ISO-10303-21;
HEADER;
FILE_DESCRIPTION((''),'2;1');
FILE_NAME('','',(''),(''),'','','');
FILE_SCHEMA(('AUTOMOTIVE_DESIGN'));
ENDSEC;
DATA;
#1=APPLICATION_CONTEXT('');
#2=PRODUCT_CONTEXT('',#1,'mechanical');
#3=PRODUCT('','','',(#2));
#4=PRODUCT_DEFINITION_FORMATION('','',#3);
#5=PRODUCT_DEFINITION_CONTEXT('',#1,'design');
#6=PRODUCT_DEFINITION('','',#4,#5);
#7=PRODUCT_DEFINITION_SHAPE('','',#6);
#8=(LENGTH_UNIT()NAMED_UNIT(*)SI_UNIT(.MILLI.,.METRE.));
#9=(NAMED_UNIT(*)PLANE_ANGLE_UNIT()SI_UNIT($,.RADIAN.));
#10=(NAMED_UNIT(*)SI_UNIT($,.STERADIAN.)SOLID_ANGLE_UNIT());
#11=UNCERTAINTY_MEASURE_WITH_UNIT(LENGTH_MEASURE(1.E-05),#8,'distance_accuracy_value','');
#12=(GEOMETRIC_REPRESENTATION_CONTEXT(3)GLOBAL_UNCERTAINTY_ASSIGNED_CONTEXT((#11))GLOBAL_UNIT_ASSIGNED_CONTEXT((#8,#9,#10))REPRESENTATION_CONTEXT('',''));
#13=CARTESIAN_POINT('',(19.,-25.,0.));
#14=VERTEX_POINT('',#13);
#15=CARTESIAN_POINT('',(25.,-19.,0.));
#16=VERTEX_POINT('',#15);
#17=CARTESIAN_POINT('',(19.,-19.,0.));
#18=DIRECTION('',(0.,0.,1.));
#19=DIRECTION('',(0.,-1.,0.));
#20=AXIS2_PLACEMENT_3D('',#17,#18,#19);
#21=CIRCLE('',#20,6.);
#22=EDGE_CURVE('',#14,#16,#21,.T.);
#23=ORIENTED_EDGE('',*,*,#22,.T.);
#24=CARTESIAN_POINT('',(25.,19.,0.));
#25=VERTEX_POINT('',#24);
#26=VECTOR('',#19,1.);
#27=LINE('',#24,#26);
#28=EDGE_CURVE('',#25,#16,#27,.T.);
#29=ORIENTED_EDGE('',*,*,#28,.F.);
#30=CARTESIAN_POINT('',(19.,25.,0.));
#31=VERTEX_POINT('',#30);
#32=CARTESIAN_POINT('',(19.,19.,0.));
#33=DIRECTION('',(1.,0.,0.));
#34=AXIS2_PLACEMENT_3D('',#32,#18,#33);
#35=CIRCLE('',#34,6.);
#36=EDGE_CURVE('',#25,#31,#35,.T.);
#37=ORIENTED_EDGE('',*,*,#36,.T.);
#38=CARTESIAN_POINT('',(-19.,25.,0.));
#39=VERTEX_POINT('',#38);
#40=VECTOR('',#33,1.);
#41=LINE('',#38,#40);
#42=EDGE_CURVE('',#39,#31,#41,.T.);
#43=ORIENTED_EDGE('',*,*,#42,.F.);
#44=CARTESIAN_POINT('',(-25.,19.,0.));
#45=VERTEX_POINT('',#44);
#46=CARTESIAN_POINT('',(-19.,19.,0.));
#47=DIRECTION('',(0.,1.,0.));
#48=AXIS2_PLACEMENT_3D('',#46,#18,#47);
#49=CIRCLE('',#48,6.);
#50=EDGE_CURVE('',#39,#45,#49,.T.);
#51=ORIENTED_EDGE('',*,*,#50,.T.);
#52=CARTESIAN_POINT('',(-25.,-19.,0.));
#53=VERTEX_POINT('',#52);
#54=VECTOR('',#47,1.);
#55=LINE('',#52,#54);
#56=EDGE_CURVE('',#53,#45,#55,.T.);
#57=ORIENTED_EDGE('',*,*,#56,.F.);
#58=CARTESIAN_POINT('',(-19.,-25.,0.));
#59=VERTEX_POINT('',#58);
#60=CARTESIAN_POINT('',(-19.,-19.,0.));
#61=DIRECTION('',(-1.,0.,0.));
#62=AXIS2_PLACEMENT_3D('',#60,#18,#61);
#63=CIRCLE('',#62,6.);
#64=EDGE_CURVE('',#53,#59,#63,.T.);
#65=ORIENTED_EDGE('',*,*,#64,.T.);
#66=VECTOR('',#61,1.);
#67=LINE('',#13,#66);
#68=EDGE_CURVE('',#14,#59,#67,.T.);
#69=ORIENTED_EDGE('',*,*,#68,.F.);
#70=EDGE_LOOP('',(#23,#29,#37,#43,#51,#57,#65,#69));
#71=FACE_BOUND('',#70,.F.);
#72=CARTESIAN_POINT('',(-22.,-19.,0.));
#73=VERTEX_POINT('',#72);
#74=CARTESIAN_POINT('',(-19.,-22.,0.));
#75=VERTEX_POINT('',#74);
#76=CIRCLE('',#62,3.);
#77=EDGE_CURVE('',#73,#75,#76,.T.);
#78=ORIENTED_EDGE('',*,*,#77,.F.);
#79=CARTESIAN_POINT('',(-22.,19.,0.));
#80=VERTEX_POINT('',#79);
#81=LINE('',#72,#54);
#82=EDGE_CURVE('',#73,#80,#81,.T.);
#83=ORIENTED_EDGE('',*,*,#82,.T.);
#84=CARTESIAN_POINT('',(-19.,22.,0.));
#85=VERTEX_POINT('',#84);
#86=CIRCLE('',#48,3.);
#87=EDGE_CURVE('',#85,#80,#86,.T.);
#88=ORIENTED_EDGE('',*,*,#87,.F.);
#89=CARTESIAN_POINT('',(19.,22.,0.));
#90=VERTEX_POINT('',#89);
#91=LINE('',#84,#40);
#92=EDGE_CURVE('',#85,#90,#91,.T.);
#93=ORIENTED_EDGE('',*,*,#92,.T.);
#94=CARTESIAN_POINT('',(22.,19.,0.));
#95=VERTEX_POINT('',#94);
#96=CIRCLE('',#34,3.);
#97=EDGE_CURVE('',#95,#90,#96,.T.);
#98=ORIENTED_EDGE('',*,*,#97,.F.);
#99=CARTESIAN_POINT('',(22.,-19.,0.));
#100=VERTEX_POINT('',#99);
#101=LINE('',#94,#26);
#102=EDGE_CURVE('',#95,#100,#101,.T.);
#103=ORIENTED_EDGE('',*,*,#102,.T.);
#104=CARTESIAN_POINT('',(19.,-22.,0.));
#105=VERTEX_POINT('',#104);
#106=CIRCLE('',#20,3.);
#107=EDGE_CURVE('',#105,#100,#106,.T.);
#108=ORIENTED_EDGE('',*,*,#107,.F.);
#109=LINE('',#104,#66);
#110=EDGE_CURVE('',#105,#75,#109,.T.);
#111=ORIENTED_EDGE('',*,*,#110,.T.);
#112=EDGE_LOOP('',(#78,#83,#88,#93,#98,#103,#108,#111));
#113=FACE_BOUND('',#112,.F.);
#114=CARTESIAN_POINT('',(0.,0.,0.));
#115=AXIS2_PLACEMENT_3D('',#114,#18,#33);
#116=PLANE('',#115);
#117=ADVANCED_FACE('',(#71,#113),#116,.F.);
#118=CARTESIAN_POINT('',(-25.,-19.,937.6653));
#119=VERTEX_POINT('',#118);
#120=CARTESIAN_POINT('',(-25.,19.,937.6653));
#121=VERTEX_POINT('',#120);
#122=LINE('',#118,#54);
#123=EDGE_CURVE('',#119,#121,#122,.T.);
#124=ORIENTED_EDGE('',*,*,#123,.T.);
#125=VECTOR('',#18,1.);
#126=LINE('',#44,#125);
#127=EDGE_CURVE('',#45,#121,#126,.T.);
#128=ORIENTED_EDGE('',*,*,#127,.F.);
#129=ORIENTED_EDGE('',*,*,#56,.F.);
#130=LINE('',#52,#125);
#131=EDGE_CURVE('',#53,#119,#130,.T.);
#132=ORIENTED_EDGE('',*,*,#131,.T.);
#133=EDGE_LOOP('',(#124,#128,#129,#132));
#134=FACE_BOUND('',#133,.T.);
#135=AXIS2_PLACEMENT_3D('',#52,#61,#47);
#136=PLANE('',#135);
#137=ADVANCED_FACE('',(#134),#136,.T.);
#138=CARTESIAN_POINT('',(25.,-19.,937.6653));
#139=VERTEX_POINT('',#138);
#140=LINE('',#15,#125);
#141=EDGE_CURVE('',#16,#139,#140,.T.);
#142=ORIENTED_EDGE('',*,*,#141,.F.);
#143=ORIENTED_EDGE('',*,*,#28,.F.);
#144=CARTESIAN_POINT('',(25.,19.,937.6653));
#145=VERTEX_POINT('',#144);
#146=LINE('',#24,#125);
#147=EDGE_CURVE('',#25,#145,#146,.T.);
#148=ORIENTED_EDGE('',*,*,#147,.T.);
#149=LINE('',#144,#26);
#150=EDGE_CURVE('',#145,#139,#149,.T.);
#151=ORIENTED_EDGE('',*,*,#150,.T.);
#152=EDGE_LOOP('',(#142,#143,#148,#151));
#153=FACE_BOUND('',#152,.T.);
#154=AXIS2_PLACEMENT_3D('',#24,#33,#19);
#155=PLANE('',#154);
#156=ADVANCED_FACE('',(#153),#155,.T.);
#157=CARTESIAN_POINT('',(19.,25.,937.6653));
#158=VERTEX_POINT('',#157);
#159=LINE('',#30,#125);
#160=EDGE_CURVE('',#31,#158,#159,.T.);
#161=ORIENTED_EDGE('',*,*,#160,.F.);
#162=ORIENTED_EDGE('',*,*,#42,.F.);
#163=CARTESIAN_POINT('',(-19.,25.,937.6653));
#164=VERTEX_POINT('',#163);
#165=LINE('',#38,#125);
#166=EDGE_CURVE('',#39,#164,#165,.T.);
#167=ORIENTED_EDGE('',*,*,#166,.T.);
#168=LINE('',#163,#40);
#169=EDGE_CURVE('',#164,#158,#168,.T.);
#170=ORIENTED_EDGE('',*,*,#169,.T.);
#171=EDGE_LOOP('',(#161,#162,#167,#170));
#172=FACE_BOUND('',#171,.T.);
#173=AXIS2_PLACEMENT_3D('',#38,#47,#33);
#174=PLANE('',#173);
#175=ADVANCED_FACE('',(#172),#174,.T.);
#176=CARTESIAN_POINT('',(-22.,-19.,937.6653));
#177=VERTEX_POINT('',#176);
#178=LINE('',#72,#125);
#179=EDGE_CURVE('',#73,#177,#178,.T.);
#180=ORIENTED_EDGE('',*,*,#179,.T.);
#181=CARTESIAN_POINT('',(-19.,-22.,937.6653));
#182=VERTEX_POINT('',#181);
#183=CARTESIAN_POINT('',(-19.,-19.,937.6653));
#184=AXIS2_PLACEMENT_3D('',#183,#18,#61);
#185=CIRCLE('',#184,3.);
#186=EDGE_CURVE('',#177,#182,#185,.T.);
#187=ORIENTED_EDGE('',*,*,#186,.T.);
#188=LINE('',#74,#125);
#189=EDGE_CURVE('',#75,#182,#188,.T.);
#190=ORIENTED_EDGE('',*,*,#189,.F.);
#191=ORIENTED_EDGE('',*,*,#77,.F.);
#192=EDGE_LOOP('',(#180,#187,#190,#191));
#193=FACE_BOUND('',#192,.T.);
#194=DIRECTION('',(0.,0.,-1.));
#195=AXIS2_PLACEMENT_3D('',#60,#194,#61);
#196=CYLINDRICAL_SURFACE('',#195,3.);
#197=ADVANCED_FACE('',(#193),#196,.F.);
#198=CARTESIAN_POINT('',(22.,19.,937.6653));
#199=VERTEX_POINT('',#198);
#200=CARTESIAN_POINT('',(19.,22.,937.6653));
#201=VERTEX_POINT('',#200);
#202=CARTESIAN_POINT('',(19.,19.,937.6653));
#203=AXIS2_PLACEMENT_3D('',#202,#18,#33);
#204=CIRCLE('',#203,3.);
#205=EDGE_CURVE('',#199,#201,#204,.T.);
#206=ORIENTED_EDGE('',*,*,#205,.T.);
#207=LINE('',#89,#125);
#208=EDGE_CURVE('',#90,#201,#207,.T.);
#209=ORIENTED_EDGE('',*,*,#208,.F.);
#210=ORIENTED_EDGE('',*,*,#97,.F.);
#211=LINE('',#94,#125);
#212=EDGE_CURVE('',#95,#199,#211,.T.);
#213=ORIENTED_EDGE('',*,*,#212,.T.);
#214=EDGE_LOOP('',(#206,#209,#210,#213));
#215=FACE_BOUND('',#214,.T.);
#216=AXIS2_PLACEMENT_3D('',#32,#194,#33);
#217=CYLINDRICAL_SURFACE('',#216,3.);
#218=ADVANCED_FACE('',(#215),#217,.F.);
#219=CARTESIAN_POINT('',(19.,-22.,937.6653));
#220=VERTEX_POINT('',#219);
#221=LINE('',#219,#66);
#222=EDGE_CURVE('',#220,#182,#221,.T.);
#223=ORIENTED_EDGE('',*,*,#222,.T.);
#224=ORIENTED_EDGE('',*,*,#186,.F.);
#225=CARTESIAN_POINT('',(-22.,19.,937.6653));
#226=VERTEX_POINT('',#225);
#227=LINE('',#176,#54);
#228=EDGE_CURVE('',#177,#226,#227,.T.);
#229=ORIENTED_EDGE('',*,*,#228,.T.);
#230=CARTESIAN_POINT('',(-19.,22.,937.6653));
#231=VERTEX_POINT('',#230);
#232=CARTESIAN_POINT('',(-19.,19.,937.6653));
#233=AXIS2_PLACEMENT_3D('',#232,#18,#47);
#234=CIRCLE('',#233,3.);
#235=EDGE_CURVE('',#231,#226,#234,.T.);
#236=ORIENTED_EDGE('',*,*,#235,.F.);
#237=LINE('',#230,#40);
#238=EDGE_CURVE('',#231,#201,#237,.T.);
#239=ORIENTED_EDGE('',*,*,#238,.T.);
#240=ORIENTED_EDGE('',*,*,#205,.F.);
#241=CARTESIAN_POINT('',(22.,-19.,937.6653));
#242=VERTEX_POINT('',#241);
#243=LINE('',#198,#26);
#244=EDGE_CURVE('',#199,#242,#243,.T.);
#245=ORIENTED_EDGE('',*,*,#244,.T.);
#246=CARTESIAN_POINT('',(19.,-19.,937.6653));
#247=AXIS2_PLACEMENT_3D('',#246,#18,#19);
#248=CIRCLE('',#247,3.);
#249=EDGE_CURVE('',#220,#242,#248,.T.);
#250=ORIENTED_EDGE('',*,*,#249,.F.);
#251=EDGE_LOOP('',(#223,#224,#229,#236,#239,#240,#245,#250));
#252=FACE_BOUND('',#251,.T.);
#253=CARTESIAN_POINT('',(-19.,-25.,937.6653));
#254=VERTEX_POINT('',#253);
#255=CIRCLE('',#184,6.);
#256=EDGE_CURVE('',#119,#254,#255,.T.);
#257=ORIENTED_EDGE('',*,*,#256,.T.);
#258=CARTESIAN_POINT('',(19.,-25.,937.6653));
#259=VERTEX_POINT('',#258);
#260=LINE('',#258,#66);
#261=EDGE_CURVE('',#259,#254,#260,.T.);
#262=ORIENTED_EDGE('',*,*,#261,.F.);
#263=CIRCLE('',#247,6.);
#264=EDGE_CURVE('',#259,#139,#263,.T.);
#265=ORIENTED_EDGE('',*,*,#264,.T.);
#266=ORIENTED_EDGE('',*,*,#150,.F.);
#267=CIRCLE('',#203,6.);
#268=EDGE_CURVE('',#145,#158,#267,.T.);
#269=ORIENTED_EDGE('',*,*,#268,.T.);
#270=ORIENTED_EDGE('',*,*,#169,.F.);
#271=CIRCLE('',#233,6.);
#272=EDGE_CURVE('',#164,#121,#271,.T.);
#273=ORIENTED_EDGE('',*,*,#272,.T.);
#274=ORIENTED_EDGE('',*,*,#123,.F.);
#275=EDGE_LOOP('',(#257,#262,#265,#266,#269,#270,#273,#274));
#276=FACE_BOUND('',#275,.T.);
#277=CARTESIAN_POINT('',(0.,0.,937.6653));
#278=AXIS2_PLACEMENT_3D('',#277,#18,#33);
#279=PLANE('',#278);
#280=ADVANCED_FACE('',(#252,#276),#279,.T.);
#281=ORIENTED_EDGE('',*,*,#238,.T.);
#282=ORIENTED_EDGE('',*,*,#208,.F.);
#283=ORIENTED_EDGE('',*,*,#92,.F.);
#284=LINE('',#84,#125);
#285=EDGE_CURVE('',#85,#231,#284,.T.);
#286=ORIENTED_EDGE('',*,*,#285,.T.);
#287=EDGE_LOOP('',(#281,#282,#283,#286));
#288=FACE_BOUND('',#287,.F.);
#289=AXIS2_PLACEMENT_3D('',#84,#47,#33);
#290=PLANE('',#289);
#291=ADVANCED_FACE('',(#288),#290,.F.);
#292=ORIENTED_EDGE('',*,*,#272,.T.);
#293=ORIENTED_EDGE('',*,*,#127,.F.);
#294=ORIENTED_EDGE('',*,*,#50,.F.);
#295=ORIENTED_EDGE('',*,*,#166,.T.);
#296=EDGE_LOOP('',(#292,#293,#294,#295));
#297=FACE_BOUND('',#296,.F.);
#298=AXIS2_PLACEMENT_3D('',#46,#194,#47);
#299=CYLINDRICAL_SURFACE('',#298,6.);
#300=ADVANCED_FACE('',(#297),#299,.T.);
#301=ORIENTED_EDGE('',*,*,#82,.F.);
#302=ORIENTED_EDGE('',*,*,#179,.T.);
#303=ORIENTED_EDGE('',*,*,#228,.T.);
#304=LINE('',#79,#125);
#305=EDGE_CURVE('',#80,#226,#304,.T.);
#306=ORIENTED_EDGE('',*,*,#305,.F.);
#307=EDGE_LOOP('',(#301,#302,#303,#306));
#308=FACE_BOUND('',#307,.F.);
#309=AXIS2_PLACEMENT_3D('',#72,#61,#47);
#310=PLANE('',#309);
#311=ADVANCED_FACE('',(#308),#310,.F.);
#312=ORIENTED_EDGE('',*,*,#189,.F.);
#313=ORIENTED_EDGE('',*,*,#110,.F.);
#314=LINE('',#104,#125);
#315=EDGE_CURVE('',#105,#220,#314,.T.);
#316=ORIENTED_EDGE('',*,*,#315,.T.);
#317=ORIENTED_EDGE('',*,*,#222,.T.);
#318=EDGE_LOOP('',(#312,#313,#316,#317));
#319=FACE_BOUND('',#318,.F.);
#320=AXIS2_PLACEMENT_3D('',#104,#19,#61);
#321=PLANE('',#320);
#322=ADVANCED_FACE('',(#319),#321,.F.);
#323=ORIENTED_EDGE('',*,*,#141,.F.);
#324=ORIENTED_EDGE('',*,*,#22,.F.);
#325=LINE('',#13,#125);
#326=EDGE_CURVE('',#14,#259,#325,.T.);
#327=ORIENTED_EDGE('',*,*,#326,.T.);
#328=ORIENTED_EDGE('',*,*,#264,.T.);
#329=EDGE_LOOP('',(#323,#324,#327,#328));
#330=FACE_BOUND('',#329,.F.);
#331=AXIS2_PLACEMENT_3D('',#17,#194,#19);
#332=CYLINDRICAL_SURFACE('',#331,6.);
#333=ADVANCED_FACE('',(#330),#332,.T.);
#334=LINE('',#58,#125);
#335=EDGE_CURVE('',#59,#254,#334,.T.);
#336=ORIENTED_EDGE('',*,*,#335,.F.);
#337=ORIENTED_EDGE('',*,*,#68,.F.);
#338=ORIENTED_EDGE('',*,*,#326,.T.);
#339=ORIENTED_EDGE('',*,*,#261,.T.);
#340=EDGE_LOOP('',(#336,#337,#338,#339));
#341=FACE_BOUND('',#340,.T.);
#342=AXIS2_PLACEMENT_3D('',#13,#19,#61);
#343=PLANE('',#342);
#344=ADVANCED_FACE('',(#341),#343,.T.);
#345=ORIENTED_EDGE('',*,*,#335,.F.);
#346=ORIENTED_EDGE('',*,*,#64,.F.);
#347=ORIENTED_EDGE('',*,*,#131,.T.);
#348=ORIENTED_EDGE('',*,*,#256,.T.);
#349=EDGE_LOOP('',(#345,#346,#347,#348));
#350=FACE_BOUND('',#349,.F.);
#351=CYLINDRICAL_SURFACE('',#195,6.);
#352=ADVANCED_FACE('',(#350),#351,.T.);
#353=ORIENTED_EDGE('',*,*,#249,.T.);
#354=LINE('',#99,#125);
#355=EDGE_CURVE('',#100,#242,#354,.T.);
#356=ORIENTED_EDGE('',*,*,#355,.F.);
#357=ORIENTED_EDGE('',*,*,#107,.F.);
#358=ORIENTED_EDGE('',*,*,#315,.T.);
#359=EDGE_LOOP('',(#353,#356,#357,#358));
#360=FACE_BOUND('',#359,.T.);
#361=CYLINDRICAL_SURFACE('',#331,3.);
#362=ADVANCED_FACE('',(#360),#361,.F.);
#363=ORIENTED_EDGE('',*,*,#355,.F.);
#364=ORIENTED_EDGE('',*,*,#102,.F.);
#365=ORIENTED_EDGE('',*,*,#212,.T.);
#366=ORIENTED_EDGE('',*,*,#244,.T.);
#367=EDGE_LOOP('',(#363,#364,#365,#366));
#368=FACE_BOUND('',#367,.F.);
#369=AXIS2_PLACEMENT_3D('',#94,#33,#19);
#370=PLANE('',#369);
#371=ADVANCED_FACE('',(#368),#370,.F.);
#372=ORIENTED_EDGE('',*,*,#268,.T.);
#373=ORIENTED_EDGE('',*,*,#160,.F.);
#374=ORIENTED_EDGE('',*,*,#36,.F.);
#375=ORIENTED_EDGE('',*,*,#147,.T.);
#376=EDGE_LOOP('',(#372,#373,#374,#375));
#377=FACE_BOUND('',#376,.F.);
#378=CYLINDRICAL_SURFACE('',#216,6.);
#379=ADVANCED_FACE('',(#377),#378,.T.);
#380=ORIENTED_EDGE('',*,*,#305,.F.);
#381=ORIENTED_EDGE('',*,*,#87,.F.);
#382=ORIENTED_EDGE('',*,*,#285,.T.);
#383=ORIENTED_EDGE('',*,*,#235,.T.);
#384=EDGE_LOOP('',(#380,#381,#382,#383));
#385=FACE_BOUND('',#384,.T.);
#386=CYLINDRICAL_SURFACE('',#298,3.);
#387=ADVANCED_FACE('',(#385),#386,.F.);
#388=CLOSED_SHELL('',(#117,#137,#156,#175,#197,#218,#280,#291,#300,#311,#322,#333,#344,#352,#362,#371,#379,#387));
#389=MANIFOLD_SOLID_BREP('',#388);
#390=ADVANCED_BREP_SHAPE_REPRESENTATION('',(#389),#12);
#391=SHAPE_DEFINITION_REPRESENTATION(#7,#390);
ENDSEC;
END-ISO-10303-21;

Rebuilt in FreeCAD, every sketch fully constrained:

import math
import FreeCAD as App
import Part
import Sketcher
Q = App.Units.Quantity

doc = App.newDocument("Part")
body = doc.addObject("PartDesign::Body", "Body")

# Sketch on XY plane
sketch1 = doc.addObject("Sketcher::SketchObject", "Sketch")
body.addObject(sketch1)
sketch1.AttachmentSupport = (doc.XY_Plane, [""])
sketch1.MapMode = "FlatFace"
sketch1.addGeometry([
    Part.LineSegment(App.Vector(-25, 19, 0), App.Vector(-25, -19, 0)),  # 0
    Part.ArcOfCircle(Part.Circle(App.Vector(-19, -19, 0), App.Vector(0, 0, 1), 6), math.radians(180), math.radians(270)),  # 1
    Part.LineSegment(App.Vector(-19, -25, 0), App.Vector(19, -25, 0)),  # 2
    Part.ArcOfCircle(Part.Circle(App.Vector(19, -19, 0), App.Vector(0, 0, 1), 6), math.radians(-90), math.radians(0)),  # 3
    Part.LineSegment(App.Vector(25, -19, 0), App.Vector(25, 19, 0)),  # 4
    Part.ArcOfCircle(Part.Circle(App.Vector(19, 19, 0), App.Vector(0, 0, 1), 6), math.radians(0), math.radians(90)),  # 5
    Part.LineSegment(App.Vector(19, 25, 0), App.Vector(-19, 25, 0)),  # 6
    Part.ArcOfCircle(Part.Circle(App.Vector(-19, 19, 0), App.Vector(0, 0, 1), 6), math.radians(90), math.radians(180)),  # 7
    Part.ArcOfCircle(Part.Circle(App.Vector(-19, 19, 0), App.Vector(0, 0, 1), 3), math.radians(90), math.radians(180)),  # 8
    Part.LineSegment(App.Vector(-19, 22, 0), App.Vector(19, 22, 0)),  # 9
    Part.ArcOfCircle(Part.Circle(App.Vector(19, 19, 0), App.Vector(0, 0, 1), 3), math.radians(0), math.radians(90)),  # 10
    Part.LineSegment(App.Vector(22, 19, 0), App.Vector(22, -19, 0)),  # 11
    Part.ArcOfCircle(Part.Circle(App.Vector(19, -19, 0), App.Vector(0, 0, 1), 3), math.radians(-90), math.radians(0)),  # 12
    Part.LineSegment(App.Vector(19, -22, 0), App.Vector(-19, -22, 0)),  # 13
    Part.ArcOfCircle(Part.Circle(App.Vector(-19, -19, 0), App.Vector(0, 0, 1), 3), math.radians(180), math.radians(270)),  # 14
    Part.LineSegment(App.Vector(-22, -19, 0), App.Vector(-22, 19, 0)),  # 15
], False)
sketch1.addConstraint([
    Sketcher.Constraint("Tangent", 0, 2, 1, 1),
    Sketcher.Constraint("Tangent", 1, 2, 2, 1),
    Sketcher.Constraint("Tangent", 2, 2, 3, 1),
    Sketcher.Constraint("Tangent", 3, 2, 4, 1),
    Sketcher.Constraint("Tangent", 4, 2, 5, 1),
    Sketcher.Constraint("Tangent", 5, 2, 6, 1),
    Sketcher.Constraint("Tangent", 6, 2, 7, 1),
    Sketcher.Constraint("Tangent", 7, 2, 0, 1),
    Sketcher.Constraint("Tangent", 8, 1, 9, 1),
    Sketcher.Constraint("Tangent", 9, 2, 10, 2),
    Sketcher.Constraint("Tangent", 10, 1, 11, 1),
    Sketcher.Constraint("Tangent", 11, 2, 12, 2),
    Sketcher.Constraint("Tangent", 12, 1, 13, 1),
    Sketcher.Constraint("Tangent", 13, 2, 14, 2),
    Sketcher.Constraint("Tangent", 14, 1, 15, 1),
    Sketcher.Constraint("Tangent", 15, 2, 8, 2),
    Sketcher.Constraint("Vertical", 0),
    Sketcher.Constraint("Horizontal", 2),
    Sketcher.Constraint("Vertical", 4),
    Sketcher.Constraint("Horizontal", 6),
    Sketcher.Constraint("Horizontal", 9),
    Sketcher.Constraint("Vertical", 11),
    Sketcher.Constraint("Horizontal", 13),
    Sketcher.Constraint("Vertical", 15),
    Sketcher.Constraint("Coincident", 8, 3, 7, 3),
    Sketcher.Constraint("Coincident", 10, 3, 5, 3),
    Sketcher.Constraint("Coincident", 12, 3, 3, 3),
    Sketcher.Constraint("Equal", 1, 3),
    Sketcher.Constraint("Equal", 3, 5),
    Sketcher.Constraint("Equal", 5, 7),
    Sketcher.Constraint("Equal", 12, 14),
    Sketcher.Constraint("Symmetric", 1, 3, 5, 3, -1, 1),
    Sketcher.Constraint("Equal", 13, 0),
    Sketcher.Constraint("Radius", 1, Q("6 mm")),
    Sketcher.Constraint("Radius", 8, Q("3 mm")),
    Sketcher.Constraint("DistanceX", 0, 2, -1, 1, Q("25 mm")),
])
pad1 = doc.addObject("PartDesign::Pad", "Pad")
body.addObject(pad1)
pad1.Profile = sketch1
pad1.Length = 937.6653

doc.recompute()
